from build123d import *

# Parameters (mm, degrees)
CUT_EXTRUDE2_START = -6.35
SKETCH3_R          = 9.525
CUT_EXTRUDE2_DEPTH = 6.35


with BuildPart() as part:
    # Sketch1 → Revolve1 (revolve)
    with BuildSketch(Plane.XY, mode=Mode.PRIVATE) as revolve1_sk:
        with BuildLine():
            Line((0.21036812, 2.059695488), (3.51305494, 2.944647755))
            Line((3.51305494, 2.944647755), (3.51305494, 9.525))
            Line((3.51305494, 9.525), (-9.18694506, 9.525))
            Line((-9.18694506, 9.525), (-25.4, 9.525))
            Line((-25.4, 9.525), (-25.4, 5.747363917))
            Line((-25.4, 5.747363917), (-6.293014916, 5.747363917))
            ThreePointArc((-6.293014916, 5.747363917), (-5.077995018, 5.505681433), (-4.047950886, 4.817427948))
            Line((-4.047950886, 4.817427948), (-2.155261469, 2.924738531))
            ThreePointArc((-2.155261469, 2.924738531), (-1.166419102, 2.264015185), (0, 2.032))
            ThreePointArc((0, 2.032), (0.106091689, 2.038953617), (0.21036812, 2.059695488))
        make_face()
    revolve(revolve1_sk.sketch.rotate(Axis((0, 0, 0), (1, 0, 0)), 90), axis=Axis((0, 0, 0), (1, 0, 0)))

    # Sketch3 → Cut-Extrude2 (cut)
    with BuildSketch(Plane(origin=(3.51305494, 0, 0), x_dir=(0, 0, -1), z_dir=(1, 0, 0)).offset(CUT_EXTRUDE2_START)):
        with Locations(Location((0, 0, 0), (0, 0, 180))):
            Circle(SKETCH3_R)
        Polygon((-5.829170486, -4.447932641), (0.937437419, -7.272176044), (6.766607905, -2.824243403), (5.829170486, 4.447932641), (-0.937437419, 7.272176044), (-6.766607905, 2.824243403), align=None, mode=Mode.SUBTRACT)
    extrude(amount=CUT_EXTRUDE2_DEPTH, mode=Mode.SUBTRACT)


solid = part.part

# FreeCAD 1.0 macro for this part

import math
import FreeCAD as App
import Part
import Sketcher
from FreeCAD import Vector
Q = App.Units.Quantity


def add_polygon(sketch, points):
    """Adds a closed chain of lines whose ends are joined by coincident constraints."""
    first, n = sketch.GeometryCount, len(points)
    for a, b in zip(points, points[1:] + points[:1]):
        sketch.addGeometry(Part.LineSegment(App.Vector(*a, 0), App.Vector(*b, 0)), False)
    for i in range(n):
        sketch.addConstraint(Sketcher.Constraint("Coincident", first + i, 2, first + (i + 1) % n, 1))

doc = App.newDocument("Part")
body = doc.addObject("PartDesign::Body", "Body")

sketch1 = doc.addObject("Sketcher::SketchObject", "Sketch")
body.addObject(sketch1)
sketch1.AttachmentSupport = (doc.XY_Plane, [""])
sketch1.MapMode = "FlatFace"
sketch1.addGeometry(Part.LineSegment(Vector(0.21, 2.06, 0), Vector(3.51, 2.94, 0)), False)
sketch1.addGeometry(Part.LineSegment(Vector(3.51, 2.94, 0), Vector(3.51, 9.53, 0)), False)
sketch1.addGeometry(Part.LineSegment(Vector(3.51, 9.53, 0), Vector(-25.4, 9.53, 0)), False)
sketch1.addGeometry(Part.LineSegment(Vector(-25.4, 9.53, 0), Vector(-25.4, 5.75, 0)), False)
sketch1.addGeometry(Part.LineSegment(Vector(-25.4, 5.75, 0), Vector(-6.29, 5.75, 0)), False)
sketch1.addGeometry(Part.ArcOfCircle(Part.Circle(Vector(-6.29, 2.57, 0), Vector(0, 0, 1), 3.17), math.radians(45), math.radians(90)), False)
sketch1.addGeometry(Part.LineSegment(Vector(-4.05, 4.82, 0), Vector(-2.16, 2.92, 0)), False)
sketch1.addGeometry(Part.ArcOfCircle(Part.Circle(Vector(0, 5.08, 0), Vector(0, 0, 1), 3.05), math.radians(-135), math.radians(-90)), False)
sketch1.addGeometry(Part.ArcOfCircle(Part.Circle(Vector(0, 2.84, 0), Vector(0, 0, 1), 0.81), math.radians(-90), math.radians(-75)), False)
sketch1.addConstraint(Sketcher.Constraint("Coincident", 0, 2, 1, 1))
sketch1.addConstraint(Sketcher.Constraint("Coincident", 1, 2, 2, 1))
sketch1.addConstraint(Sketcher.Constraint("Coincident", 2, 2, 3, 1))
sketch1.addConstraint(Sketcher.Constraint("Coincident", 3, 2, 4, 1))
sketch1.addConstraint(Sketcher.Constraint("Tangent", 4, 2, 5, 2))
sketch1.addConstraint(Sketcher.Constraint("Tangent", 5, 1, 6, 1))
sketch1.addConstraint(Sketcher.Constraint("Tangent", 6, 2, 7, 1))
sketch1.addConstraint(Sketcher.Constraint("Tangent", 7, 2, 8, 1))
sketch1.addConstraint(Sketcher.Constraint("Tangent", 8, 2, 0, 1))
sketch1.addConstraint(Sketcher.Constraint("Vertical", 1))
sketch1.addConstraint(Sketcher.Constraint("Horizontal", 2))
sketch1.addConstraint(Sketcher.Constraint("Vertical", 3))
sketch1.addConstraint(Sketcher.Constraint("Horizontal", 4))
sketch1.addConstraint(Sketcher.Constraint("PointOnObject", 7, 3, -2))
sketch1.addConstraint(Sketcher.Constraint("PointOnObject", 8, 3, -2))
sketch1.addConstraint(Sketcher.Constraint("Radius", 7, Q("0.12 in")))
sketch1.addConstraint(Sketcher.Constraint("DistanceX", 2, 2, -1, 1, Q("1 in")))
sketch1.addConstraint(Sketcher.Constraint("Angle", 0, Q("15 deg")))
sketch1.addConstraint(Sketcher.Constraint("Angle", 6, Q("-45 deg")))
sketch1.addConstraint(Sketcher.Constraint("Radius", 5, Q("0.125 in")))
sketch1.addConstraint(Sketcher.Constraint("Radius", 8, Q("0.032 in")))
sketch1.addConstraint(Sketcher.Constraint("DistanceY", -1, 1, 7, 3, Q("0.2 in")))
sketch1.addConstraint(Sketcher.Constraint("DistanceY", -1, 1, 1, 2, Q("0.375 in")))
sketch1.addConstraint(Sketcher.Constraint("DistanceX", 2, 2, 2, 1, 28.913055))
sketch1.addConstraint(Sketcher.Constraint("DistanceX", 4, 1, 4, 2, 19.106985))
revolution = doc.addObject("PartDesign::Revolution", "Revolution")
body.addObject(revolution)
revolution.Profile = sketch1
revolution.ReferenceAxis = (sketch1, ["H_Axis"])
revolution.Angle = 360

sketch2 = doc.addObject("Sketcher::SketchObject", "Sketch001")
body.addObject(sketch2)
sketch2.AttachmentSupport = (doc.YZ_Plane, [""])
sketch2.MapMode = "FlatFace"
sketch2.AttachmentOffset = App.Placement(Vector(0, 0, -2.836945), App.Rotation())
sketch2.addGeometry(Part.Circle(Vector(0, 0, 0), Vector(0, 0, 1), 10), False)
add_polygon(sketch2, [(-7, -1), (-4, 6), (3, 7), (7, 1), (4, -6), (-3, -7)])
sketch2.addConstraint(Sketcher.Constraint("Coincident", 0, 3, -1, 1))
sketch2.addConstraint(Sketcher.Constraint("Symmetric", 1, 2, 4, 2, -1, 1))
sketch2.addConstraint(Sketcher.Constraint("Symmetric", 2, 2, 5, 2, -1, 1))
sketch2.addConstraint(Sketcher.Constraint("Symmetric", 3, 2, 6, 2, -1, 1))
sketch2.addConstraint(Sketcher.Constraint("Equal", 1, 2))
sketch2.addConstraint(Sketcher.Constraint("Equal", 2, 3))
sketch2.addConstraint(Sketcher.Constraint("Diameter", 0, Q("0.75 in")))
sketch2.addConstraint(Sketcher.Constraint("Distance", 1, 7.332348))
sketch2.addConstraint(Sketcher.Constraint("DistanceY", -1, 1, 1, 2, 5.82917))
sketch2.addConstraint(Sketcher.Constraint("DistanceY", 3, 2, 2, 2, 5.82917))
sketch2.addConstraint(Sketcher.Constraint("DistanceX", 1, 2, 3, 2, 11.720109))
pocket1 = doc.addObject("PartDesign::Pocket", "Pocket")
body.addObject(pocket1)
pocket1.Profile = sketch2
pocket1.Length = Q("0.25 in")
pocket1.Reversed = True

doc.recompute()
